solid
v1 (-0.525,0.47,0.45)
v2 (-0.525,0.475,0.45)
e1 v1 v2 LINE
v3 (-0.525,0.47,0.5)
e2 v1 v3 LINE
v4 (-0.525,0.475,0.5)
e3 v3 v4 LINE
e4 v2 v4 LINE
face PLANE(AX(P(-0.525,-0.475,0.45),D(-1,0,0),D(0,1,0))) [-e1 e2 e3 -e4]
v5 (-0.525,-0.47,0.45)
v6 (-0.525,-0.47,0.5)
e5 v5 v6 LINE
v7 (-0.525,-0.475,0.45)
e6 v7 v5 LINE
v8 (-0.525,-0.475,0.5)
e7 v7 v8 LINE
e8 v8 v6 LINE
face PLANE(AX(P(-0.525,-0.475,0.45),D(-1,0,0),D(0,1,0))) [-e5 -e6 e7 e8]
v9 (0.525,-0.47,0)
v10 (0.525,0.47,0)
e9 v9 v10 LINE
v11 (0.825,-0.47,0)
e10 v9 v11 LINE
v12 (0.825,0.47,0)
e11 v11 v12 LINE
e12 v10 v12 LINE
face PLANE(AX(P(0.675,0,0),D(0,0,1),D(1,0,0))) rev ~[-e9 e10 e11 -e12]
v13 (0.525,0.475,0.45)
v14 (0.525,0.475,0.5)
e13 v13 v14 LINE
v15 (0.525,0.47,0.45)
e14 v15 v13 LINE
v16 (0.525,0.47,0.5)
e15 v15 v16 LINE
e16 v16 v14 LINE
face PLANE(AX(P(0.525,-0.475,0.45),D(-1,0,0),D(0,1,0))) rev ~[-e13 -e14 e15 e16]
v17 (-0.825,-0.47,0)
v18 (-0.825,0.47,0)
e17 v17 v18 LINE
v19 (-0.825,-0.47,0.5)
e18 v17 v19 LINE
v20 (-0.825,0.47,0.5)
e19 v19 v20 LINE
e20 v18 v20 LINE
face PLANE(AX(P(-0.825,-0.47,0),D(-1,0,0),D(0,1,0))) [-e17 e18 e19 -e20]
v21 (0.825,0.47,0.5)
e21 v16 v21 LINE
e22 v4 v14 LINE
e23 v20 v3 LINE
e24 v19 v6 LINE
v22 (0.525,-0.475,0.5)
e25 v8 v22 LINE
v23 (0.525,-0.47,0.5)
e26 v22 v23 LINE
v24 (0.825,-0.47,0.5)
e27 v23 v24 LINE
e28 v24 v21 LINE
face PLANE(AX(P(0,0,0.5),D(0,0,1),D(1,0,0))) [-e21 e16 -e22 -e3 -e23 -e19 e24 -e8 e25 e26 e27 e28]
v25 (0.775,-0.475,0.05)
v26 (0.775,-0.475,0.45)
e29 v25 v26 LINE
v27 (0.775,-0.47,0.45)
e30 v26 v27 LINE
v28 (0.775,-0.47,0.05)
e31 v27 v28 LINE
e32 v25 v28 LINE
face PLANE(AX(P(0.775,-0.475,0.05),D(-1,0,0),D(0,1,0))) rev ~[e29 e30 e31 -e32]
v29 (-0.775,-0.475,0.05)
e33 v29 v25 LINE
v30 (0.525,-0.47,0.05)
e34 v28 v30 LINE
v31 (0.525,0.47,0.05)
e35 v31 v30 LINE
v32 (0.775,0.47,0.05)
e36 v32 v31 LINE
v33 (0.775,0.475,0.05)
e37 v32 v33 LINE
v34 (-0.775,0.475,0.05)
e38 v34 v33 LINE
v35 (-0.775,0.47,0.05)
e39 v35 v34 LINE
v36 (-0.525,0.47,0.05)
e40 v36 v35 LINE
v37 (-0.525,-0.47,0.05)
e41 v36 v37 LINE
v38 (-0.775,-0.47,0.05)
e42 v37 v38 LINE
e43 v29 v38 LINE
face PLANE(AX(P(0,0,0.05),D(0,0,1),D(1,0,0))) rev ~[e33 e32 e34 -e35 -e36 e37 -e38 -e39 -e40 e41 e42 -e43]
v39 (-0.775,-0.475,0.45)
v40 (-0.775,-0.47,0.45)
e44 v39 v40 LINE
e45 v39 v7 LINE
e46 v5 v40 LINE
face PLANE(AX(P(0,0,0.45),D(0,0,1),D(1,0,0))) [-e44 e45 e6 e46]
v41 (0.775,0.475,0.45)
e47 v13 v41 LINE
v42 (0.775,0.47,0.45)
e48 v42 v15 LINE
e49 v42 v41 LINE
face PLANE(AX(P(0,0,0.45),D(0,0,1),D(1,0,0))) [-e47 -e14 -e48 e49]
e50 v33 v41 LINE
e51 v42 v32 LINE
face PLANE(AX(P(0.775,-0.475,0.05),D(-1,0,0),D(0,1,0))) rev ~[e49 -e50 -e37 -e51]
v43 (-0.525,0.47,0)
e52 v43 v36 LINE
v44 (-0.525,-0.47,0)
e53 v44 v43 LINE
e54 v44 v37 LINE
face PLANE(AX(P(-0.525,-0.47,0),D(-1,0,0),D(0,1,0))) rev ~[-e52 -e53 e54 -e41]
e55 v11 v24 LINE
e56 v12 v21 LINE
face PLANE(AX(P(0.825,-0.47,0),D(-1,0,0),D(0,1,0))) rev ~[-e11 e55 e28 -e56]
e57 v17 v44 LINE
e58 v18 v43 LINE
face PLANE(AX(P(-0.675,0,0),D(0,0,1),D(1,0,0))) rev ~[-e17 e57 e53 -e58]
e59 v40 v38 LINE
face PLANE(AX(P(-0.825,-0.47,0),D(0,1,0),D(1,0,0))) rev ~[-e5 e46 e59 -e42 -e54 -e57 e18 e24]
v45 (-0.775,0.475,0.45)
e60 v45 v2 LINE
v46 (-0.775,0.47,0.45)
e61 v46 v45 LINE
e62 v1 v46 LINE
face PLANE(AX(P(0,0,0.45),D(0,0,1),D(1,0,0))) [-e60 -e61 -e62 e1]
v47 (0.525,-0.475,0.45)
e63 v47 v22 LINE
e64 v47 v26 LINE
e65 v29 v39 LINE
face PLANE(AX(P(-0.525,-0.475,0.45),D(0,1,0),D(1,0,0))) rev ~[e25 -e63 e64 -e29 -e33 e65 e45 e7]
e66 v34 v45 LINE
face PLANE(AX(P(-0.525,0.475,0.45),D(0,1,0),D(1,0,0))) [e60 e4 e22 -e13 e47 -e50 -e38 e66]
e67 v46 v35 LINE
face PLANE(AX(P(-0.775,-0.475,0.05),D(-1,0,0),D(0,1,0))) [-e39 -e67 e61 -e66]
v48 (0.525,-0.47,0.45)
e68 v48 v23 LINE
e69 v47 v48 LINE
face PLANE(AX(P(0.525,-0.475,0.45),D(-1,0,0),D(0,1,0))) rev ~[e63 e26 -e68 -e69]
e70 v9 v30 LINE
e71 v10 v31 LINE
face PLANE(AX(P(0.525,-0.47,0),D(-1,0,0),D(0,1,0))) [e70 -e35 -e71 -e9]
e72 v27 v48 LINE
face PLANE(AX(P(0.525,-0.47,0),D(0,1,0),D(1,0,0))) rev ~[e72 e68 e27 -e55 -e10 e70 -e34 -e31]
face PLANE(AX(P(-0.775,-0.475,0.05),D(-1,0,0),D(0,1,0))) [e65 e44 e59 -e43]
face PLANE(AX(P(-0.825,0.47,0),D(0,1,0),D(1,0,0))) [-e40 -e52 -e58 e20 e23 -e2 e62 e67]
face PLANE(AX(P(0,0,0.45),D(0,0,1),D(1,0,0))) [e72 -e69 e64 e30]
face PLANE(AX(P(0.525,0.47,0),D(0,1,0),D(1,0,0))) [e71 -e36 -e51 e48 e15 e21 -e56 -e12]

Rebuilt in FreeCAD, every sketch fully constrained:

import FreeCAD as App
import Part
import Sketcher

V = App.Vector

doc = App.newDocument("Part")
body = doc.addObject("PartDesign::Body", "Body")

# Sketch on XY plane
sketch1 = body.newObject("Sketcher::SketchObject", "Sketch")
sketch1.AttachmentSupport = (doc.getObject("XY_Plane"), [""])
sketch1.MapMode = "FlatFace"
sketch1.addGeometry(Part.LineSegment(V(-0.825, 0.47, 0), V(-0.825, -0.47, 0)), False)
sketch1.addGeometry(Part.LineSegment(V(-0.825, -0.47, 0), V(-0.525, -0.47, 0)), False)
sketch1.addGeometry(Part.LineSegment(V(-0.525, -0.47, 0), V(-0.525, 0.47, 0)), False)
sketch1.addGeometry(Part.LineSegment(V(-0.525, 0.47, 0), V(-0.825, 0.47, 0)), False)
sketch1.addConstraint(Sketcher.Constraint("Coincident", 0, 2, 1, 1))
sketch1.addConstraint(Sketcher.Constraint("Coincident", 1, 2, 2, 1))
sketch1.addConstraint(Sketcher.Constraint("Coincident", 2, 2, 3, 1))
sketch1.addConstraint(Sketcher.Constraint("Coincident", 3, 2, 0, 1))
sketch1.addConstraint(Sketcher.Constraint("Vertical", 0))
sketch1.addConstraint(Sketcher.Constraint("Horizontal", 1))
sketch1.addConstraint(Sketcher.Constraint("Vertical", 2))
sketch1.addConstraint(Sketcher.Constraint("Horizontal", 3))
sketch1.addConstraint(Sketcher.Constraint("DistanceX", 1, 1, 1, 2, 0.3))
sketch1.addConstraint(Sketcher.Constraint("DistanceY", 0, 2, 0, 1, 0.94))
sketch1.addConstraint(Sketcher.Constraint("DistanceY", 0, 2, -1, 1, 0.47))
sketch1.addConstraint(Sketcher.Constraint("DistanceX", 0, 2, -1, 1, 0.825))
pad1 = body.newObject("PartDesign::Pad", "Pad")
pad1.Profile = sketch1
pad1.Length = 0.5
body2 = doc.addObject("PartDesign::Body", "Body001")

# Sketch on XY plane
sketch2 = body2.newObject("Sketcher::SketchObject", "Sketch001")
sketch2.AttachmentSupport = (doc.getObject("XY_Plane001"), [""])
sketch2.MapMode = "FlatFace"
sketch2.addGeometry(Part.LineSegment(V(0.525, 0.47, 0), V(0.525, -0.47, 0)), False)
sketch2.addGeometry(Part.LineSegment(V(0.525, -0.47, 0), V(0.825, -0.47, 0)), False)
sketch2.addGeometry(Part.LineSegment(V(0.825, -0.47, 0), V(0.825, 0.47, 0)), False)
sketch2.addGeometry(Part.LineSegment(V(0.825, 0.47, 0), V(0.525, 0.47, 0)), False)
sketch2.addConstraint(Sketcher.Constraint("Coincident", 0, 2, 1, 1))
sketch2.addConstraint(Sketcher.Constraint("Coincident", 1, 2, 2, 1))
sketch2.addConstraint(Sketcher.Constraint("Coincident", 2, 2, 3, 1))
sketch2.addConstraint(Sketcher.Constraint("Coincident", 3, 2, 0, 1))
sketch2.addConstraint(Sketcher.Constraint("Vertical", 0))
sketch2.addConstraint(Sketcher.Constraint("Horizontal", 1))
sketch2.addConstraint(Sketcher.Constraint("Vertical", 2))
sketch2.addConstraint(Sketcher.Constraint("Horizontal", 3))
sketch2.addConstraint(Sketcher.Constraint("DistanceX", 1, 1, 1, 2, 0.3))
sketch2.addConstraint(Sketcher.Constraint("DistanceY", 0, 2, 0, 1, 0.94))
sketch2.addConstraint(Sketcher.Constraint("DistanceY", 0, 2, -1, 1, 0.47))
sketch2.addConstraint(Sketcher.Constraint("DistanceX", -1, 1, 0, 2, 0.525))
pad2 = body2.newObject("PartDesign::Pad", "Pad001")
pad2.Profile = sketch2
pad2.Length = 0.5
body3 = doc.addObject("PartDesign::Body", "Body002")

# Sketch on XY plane
sketch3 = body3.newObject("Sketcher::SketchObject", "Sketch002")
sketch3.AttachmentSupport = (doc.getObject("XY_Plane002"), [""])
sketch3.MapMode = "FlatFace"
sketch3.AttachmentOffset = App.Placement(V(0, 0, 0.45), App.Rotation())
sketch3.addGeometry(Part.LineSegment(V(-0.525, 0.475, 0), V(-0.525, -0.475, 0)), False)
sketch3.addGeometry(Part.LineSegment(V(-0.525, -0.475, 0), V(0.525, -0.475, 0)), False)
sketch3.addGeometry(Part.LineSegment(V(0.525, -0.475, 0), V(0.525, 0.475, 0)), False)
sketch3.addGeometry(Part.LineSegment(V(0.525, 0.475, 0), V(-0.525, 0.475, 0)), False)
sketch3.addConstraint(Sketcher.Constraint("Coincident", 0, 2, 1, 1))
sketch3.addConstraint(Sketcher.Constraint("Coincident", 1, 2, 2, 1))
sketch3.addConstraint(Sketcher.Constraint("Coincident", 2, 2, 3, 1))
sketch3.addConstraint(Sketcher.Constraint("Coincident", 3, 2, 0, 1))
sketch3.addConstraint(Sketcher.Constraint("Vertical", 0))
sketch3.addConstraint(Sketcher.Constraint("Horizontal", 1))
sketch3.addConstraint(Sketcher.Constraint("Vertical", 2))
sketch3.addConstraint(Sketcher.Constraint("Horizontal", 3))
sketch3.addConstraint(Sketcher.Constraint("Symmetric", 0, 2, 2, 2, -1, 1))
sketch3.addConstraint(Sketcher.Constraint("DistanceX", 1, 1, 1, 2, 1.05))
sketch3.addConstraint(Sketcher.Constraint("DistanceY", 0, 2, 0, 1, 0.95))
pad3 = body3.newObject("PartDesign::Pad", "Pad002")
pad3.Profile = sketch3
pad3.Length = 0.05
body4 = doc.addObject("PartDesign::Body", "Body003")

# Sketch on XY plane
sketch4 = body4.newObject("Sketcher::SketchObject", "Sketch003")
sketch4.AttachmentSupport = (doc.getObject("XY_Plane003"), [""])
sketch4.MapMode = "FlatFace"
sketch4.AttachmentOffset = App.Placement(V(0, 0, 0.05), App.Rotation())
sketch4.addGeometry(Part.LineSegment(V(-0.775, 0.475, 0), V(-0.775, -0.475, 0)), False)
sketch4.addGeometry(Part.LineSegment(V(-0.775, -0.475, 0), V(0.775, -0.475, 0)), False)
sketch4.addGeometry(Part.LineSegment(V(0.775, -0.475, 0), V(0.775, 0.475, 0)), False)
sketch4.addGeometry(Part.LineSegment(V(0.775, 0.475, 0), V(-0.775, 0.475, 0)), False)
sketch4.addConstraint(Sketcher.Constraint("Coincident", 0, 2, 1, 1))
sketch4.addConstraint(Sketcher.Constraint("Coincident", 1, 2, 2, 1))
sketch4.addConstraint(Sketcher.Constraint("Coincident", 2, 2, 3, 1))
sketch4.addConstraint(Sketcher.Constraint("Coincident", 3, 2, 0, 1))
sketch4.addConstraint(Sketcher.Constraint("Vertical", 0))
sketch4.addConstraint(Sketcher.Constraint("Horizontal", 1))
sketch4.addConstraint(Sketcher.Constraint("Vertical", 2))
sketch4.addConstraint(Sketcher.Constraint("Horizontal", 3))
sketch4.addConstraint(Sketcher.Constraint("Symmetric", 0, 2, 2, 2, -1, 1))
sketch4.addConstraint(Sketcher.Constraint("DistanceX", 1, 1, 1, 2, 1.55))
sketch4.addConstraint(Sketcher.Constraint("DistanceY", 0, 2, 0, 1, 0.95))
pad4 = body4.newObject("PartDesign::Pad", "Pad003")
pad4.Profile = sketch4
pad4.Length = 0.4
doc.recompute()

boolean = body4.newObject("PartDesign::Boolean", "Boolean")
boolean.Type = "Fuse"
boolean.addObjects([body])
doc.recompute()

boolean2 = body4.newObject("PartDesign::Boolean", "Boolean001")
boolean2.Type = "Fuse"
boolean2.addObjects([body2])
doc.recompute()

boolean3 = body4.newObject("PartDesign::Boolean", "Boolean002")
boolean3.Type = "Fuse"
boolean3.addObjects([body3])

doc.recompute()
